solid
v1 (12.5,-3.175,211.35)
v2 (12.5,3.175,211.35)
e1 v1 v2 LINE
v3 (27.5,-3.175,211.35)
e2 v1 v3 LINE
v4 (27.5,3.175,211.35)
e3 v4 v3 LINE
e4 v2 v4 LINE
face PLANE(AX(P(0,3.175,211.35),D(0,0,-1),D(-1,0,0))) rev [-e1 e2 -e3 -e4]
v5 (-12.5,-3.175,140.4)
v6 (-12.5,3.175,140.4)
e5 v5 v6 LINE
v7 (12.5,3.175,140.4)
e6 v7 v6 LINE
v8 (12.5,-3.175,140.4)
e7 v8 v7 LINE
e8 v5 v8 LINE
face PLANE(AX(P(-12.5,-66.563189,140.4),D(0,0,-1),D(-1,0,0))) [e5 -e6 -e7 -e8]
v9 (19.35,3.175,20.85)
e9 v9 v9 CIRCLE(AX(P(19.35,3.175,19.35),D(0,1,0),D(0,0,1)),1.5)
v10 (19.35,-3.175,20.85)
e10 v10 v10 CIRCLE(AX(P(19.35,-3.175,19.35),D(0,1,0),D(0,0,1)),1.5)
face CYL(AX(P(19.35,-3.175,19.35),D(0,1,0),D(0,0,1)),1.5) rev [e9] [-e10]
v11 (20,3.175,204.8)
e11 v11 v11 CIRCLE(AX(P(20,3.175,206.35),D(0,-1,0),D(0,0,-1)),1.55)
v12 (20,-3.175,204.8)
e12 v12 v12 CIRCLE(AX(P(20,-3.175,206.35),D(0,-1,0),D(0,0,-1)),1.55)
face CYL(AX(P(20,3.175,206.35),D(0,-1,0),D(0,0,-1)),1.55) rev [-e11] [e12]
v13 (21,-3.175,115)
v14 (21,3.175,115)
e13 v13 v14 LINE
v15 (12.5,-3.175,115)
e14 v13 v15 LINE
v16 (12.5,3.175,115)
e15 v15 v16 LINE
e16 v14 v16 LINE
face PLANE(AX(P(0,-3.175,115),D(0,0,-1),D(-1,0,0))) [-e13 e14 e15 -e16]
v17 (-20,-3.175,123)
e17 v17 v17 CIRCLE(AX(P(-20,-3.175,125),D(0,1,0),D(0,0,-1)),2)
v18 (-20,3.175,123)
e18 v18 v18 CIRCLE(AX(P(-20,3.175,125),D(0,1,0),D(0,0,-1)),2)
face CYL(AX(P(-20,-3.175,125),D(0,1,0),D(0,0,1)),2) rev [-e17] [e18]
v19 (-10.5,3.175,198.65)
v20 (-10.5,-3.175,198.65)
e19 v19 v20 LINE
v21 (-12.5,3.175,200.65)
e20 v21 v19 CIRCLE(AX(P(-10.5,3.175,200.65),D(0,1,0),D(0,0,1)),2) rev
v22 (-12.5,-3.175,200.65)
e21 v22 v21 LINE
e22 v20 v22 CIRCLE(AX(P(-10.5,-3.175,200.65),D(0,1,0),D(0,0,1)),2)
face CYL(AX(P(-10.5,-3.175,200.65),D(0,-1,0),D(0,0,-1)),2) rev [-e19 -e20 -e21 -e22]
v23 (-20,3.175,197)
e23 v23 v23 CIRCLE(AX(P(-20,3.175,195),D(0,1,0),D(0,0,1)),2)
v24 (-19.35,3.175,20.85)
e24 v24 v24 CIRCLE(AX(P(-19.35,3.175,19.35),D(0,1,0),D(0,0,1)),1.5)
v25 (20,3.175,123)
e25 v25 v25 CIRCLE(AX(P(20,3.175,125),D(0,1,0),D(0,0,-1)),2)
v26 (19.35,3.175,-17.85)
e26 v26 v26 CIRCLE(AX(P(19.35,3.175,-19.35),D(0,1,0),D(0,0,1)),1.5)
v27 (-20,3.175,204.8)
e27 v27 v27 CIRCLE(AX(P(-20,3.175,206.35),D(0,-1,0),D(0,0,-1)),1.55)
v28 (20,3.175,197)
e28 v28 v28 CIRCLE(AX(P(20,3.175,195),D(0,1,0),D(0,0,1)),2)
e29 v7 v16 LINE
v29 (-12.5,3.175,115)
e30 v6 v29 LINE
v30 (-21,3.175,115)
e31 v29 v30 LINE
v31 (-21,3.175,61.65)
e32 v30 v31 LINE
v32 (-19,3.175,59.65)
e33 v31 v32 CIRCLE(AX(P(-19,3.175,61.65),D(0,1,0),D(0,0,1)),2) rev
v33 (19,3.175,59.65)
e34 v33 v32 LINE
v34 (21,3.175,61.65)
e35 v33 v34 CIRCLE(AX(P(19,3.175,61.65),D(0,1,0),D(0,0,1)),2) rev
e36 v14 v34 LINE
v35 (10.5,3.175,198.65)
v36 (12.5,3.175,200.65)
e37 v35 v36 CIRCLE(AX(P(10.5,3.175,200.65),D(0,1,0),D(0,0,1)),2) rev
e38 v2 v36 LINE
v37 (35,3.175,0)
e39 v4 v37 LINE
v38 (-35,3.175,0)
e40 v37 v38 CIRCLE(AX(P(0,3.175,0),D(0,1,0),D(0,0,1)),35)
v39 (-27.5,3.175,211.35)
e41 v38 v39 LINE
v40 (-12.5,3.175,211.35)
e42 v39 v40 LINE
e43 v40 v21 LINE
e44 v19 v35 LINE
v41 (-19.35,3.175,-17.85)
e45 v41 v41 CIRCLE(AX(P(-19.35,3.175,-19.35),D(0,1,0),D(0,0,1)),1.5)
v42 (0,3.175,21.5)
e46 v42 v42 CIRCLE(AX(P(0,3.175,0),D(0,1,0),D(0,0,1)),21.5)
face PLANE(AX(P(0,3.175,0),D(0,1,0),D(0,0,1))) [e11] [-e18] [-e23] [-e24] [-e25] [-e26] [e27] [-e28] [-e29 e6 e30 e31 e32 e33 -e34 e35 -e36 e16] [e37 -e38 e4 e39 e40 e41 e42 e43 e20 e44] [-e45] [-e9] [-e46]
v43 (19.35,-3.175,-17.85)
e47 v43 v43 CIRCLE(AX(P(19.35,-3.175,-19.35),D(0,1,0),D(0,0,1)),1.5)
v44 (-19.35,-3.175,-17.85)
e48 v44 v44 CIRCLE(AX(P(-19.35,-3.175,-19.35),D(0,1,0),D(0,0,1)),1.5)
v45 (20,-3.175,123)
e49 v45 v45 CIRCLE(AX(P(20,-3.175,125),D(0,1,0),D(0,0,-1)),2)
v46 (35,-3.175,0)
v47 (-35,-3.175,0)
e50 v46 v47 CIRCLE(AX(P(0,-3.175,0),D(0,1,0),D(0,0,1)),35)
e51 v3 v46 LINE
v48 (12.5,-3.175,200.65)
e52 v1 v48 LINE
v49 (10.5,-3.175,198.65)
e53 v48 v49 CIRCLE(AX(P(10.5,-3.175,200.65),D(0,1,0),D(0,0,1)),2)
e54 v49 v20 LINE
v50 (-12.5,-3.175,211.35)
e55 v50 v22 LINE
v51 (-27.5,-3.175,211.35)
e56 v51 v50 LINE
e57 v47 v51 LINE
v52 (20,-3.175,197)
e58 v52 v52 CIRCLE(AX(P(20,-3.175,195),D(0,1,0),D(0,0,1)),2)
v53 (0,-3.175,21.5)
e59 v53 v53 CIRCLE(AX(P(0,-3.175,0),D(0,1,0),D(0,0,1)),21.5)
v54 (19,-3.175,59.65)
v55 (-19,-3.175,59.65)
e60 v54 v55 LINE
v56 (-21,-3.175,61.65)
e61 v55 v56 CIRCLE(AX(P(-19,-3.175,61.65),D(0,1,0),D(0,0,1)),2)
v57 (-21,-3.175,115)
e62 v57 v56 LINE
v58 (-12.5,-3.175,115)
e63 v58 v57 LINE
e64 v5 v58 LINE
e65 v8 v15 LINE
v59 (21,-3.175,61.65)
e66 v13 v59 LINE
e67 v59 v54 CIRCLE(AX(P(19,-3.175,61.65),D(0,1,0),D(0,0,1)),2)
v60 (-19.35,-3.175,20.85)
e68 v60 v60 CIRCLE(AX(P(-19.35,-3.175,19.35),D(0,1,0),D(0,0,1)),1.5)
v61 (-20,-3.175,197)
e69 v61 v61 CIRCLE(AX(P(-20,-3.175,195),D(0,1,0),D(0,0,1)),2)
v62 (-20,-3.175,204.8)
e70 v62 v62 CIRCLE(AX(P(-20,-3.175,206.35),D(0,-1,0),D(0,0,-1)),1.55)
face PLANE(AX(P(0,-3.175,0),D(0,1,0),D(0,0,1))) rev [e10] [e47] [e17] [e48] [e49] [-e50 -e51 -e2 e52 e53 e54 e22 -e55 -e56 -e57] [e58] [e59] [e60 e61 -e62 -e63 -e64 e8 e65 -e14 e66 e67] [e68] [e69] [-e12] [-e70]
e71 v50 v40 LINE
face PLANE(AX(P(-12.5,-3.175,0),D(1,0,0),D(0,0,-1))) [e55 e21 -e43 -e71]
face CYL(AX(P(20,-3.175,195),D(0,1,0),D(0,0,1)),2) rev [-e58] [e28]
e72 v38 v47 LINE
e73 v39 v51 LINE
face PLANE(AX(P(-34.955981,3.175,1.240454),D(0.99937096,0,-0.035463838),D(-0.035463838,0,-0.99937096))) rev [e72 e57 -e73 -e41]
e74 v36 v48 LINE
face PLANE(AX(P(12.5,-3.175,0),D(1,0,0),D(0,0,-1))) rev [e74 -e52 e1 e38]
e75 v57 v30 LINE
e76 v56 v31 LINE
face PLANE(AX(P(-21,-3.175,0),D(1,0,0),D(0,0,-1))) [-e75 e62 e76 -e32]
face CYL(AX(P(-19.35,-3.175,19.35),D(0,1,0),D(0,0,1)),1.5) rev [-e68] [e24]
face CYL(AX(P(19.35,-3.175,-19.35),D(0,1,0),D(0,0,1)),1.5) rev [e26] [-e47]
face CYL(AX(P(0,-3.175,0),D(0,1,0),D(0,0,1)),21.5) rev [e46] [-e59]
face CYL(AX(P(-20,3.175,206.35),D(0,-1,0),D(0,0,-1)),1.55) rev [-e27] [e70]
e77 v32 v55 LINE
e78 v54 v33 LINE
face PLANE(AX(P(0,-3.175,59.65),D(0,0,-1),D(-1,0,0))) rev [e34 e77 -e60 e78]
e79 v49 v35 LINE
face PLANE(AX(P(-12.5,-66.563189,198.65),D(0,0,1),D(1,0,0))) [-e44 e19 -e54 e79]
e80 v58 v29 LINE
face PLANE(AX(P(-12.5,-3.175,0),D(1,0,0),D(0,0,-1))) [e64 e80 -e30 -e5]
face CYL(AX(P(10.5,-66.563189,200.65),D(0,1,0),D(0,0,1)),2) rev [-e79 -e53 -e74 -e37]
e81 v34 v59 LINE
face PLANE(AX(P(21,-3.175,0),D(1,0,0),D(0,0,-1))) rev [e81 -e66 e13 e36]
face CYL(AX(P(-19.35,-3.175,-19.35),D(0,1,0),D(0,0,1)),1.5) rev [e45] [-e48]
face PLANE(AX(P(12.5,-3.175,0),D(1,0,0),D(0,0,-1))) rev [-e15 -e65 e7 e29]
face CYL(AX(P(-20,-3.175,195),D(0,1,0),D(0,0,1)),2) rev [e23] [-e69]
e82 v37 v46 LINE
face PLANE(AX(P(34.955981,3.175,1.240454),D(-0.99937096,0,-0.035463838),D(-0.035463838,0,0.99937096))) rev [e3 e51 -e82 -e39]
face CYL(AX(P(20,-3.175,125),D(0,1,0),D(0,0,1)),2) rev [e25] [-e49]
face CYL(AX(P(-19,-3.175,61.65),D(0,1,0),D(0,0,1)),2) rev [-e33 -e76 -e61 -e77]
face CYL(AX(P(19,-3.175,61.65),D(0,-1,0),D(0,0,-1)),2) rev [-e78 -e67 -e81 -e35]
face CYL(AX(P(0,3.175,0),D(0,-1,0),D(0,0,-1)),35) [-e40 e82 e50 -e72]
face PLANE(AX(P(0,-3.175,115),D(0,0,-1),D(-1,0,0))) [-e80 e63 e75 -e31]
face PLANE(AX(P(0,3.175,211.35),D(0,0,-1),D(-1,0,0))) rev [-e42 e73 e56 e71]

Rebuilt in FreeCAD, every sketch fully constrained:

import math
import FreeCAD as App
import Part
import Sketcher
Q = App.Units.Quantity


def edges_at(feature, points):
    """Names of the edges that pass closest to the given points."""
    edges = feature.Shape.Edges
    near = lambda p: min(range(len(edges)), key=lambda i: edges[i].distToShape(Part.Vertex(*p))[0])
    return sorted({f"Edge{near(p) + 1}" for p in points})

doc = App.newDocument("Part")
body = doc.addObject("PartDesign::Body", "Body")

# Sketch on XZ plane
sketch1 = body.newObject("Sketcher::SketchObject", "Sketch")
sketch1.AttachmentSupport = (doc.getObject("XZ_Plane"), [""])
sketch1.MapMode = "FlatFace"
sketch1.addGeometry([
    Part.ArcOfCircle(Part.Circle(App.Vector(0, 0, 0), App.Vector(0, 0, 1), 35), math.radians(180), math.radians(360)),
    Part.LineSegment(App.Vector(-35, 0, 0), App.Vector(-28, 211, 0)),
    Part.LineSegment(App.Vector(-28, 211, 0), App.Vector(28, 211, 0)),
    Part.LineSegment(App.Vector(28, 211, 0), App.Vector(35, 0, 0)),
], False)
sketch1.addConstraint([
    Sketcher.Constraint("Coincident", 0, 1, 1, 1),
    Sketcher.Constraint("Coincident", 1, 2, 2, 1),
    Sketcher.Constraint("Coincident", 2, 2, 3, 1),
    Sketcher.Constraint("Coincident", 3, 2, 0, 2),
    Sketcher.Constraint("Horizontal", 2),
    Sketcher.Constraint("Coincident", 0, 3, -1, 1),
    Sketcher.Constraint("PointOnObject", 0, 1, -1),
    Sketcher.Constraint("PointOnObject", 3, 2, -1),
    Sketcher.Constraint("Equal", 1, 3),
    Sketcher.Constraint("Radius", 0, Q("35 mm")),
    Sketcher.Constraint("DistanceX", 2, 1, 2, 2, Q("55 mm")),
    Sketcher.Constraint("DistanceY", -1, 1, 1, 2, Q("211.35 mm")),
])
pad1 = body.newObject("PartDesign::Pad", "Pad")
pad1.Profile = sketch1
pad1.Length = 6.35
pad1.Midplane = True

# Sketch on XZ plane
sketch2 = body.newObject("Sketcher::SketchObject", "Sketch001")
sketch2.AttachmentSupport = (doc.getObject("XZ_Plane"), [""])
sketch2.MapMode = "FlatFace"
sketch2.AttachmentOffset = App.Placement(App.Vector(0, 0, -3.175), App.Rotation())
sketch2.addGeometry(Part.Circle(App.Vector(0, 0, 0), App.Vector(0, 0, 1), 22), False)
sketch2.addConstraint([
    Sketcher.Constraint("Coincident", 0, 3, -1, 1),
    Sketcher.Constraint("Diameter", 0, Q("43 mm")),
])
pocket1 = body.newObject("PartDesign::Pocket", "Pocket")
pocket1.Profile = sketch2
pocket1.Type = "ThroughAll"
pocket1.Reversed = True

# Sketch on XZ plane
sketch3 = body.newObject("Sketcher::SketchObject", "Sketch002")
sketch3.AttachmentSupport = (doc.getObject("XZ_Plane"), [""])
sketch3.MapMode = "FlatFace"
sketch3.AttachmentOffset = App.Placement(App.Vector(0, 0, -3.175), App.Rotation())
sketch3.addGeometry([
    Part.LineSegment(App.Vector(-21, 60, 0), App.Vector(-21, 115, 0)),  # 0
    Part.LineSegment(App.Vector(-21, 115, 0), App.Vector(-12, 115, 0)),  # 1
    Part.LineSegment(App.Vector(-12, 115, 0), App.Vector(-12, 211, 0)),  # 2
    Part.LineSegment(App.Vector(-12, 211, 0), App.Vector(12, 211, 0)),  # 3
    Part.LineSegment(App.Vector(12, 211, 0), App.Vector(12, 115, 0)),  # 4
    Part.LineSegment(App.Vector(12, 115, 0), App.Vector(21, 115, 0)),  # 5
    Part.LineSegment(App.Vector(21, 115, 0), App.Vector(21, 60, 0)),  # 6
    Part.LineSegment(App.Vector(21, 60, 0), App.Vector(-21, 60, 0)),  # 7
], False)
sketch3.addConstraint([
    Sketcher.Constraint("Coincident", 0, 2, 1, 1),
    Sketcher.Constraint("Coincident", 1, 2, 2, 1),
    Sketcher.Constraint("Coincident", 2, 2, 3, 1),
    Sketcher.Constraint("Coincident", 3, 2, 4, 1),
    Sketcher.Constraint("Coincident", 4, 2, 5, 1),
    Sketcher.Constraint("Coincident", 5, 2, 6, 1),
    Sketcher.Constraint("Coincident", 6, 2, 7, 1),
    Sketcher.Constraint("Coincident", 7, 2, 0, 1),
    Sketcher.Constraint("Vertical", 0),
    Sketcher.Constraint("Horizontal", 1),
    Sketcher.Constraint("Vertical", 2),
    Sketcher.Constraint("Horizontal", 3),
    Sketcher.Constraint("Vertical", 4),
    Sketcher.Constraint("Horizontal", 5),
    Sketcher.Constraint("Vertical", 6),
    Sketcher.Constraint("Horizontal", 7),
    Sketcher.Constraint("Symmetric", 1, 2, 4, 2, -2),
    Sketcher.Constraint("Equal", 1, 5),
    Sketcher.Constraint("DistanceX", 3, 1, 3, 2, Q("25 mm")),
    Sketcher.Constraint("DistanceX", 7, 2, 7, 1, Q("42 mm")),
    Sketcher.Constraint("DistanceY", -1, 1, 0, 2, Q("115 mm")),
    Sketcher.Constraint("DistanceY", 0, 1, 0, 2, Q("55.35 mm")),
    Sketcher.Constraint("DistanceY", 2, 1, 2, 2, Q("96.35 mm")),
])
pocket2 = body.newObject("PartDesign::Pocket", "Pocket001")
pocket2.Profile = sketch3
pocket2.Type = "ThroughAll"
pocket2.Reversed = True

# Sketch on XZ plane
sketch4 = body.newObject("Sketcher::SketchObject", "Sketch003")
sketch4.AttachmentSupport = (doc.getObject("XZ_Plane"), [""])
sketch4.MapMode = "FlatFace"
sketch4.AttachmentOffset = App.Placement(App.Vector(0, 0, -3.175), App.Rotation())
sketch4.addGeometry([
    Part.Circle(App.Vector(-19.4, -19.4, 0), App.Vector(0, 0, 1), 1.5),
    Part.Circle(App.Vector(19.4, -19.4, 0), App.Vector(0, 0, 1), 1.5),
    Part.Circle(App.Vector(19.4, 19.4, 0), App.Vector(0, 0, 1), 1.5),
    Part.Circle(App.Vector(-19.4, 19.4, 0), App.Vector(0, 0, 1), 1.5),
], False)
sketch4.addConstraint([
    Sketcher.Constraint("Equal", 0, 1),
    Sketcher.Constraint("Equal", 1, 2),
    Sketcher.Constraint("Equal", 2, 3),
    Sketcher.Constraint("Symmetric", 0, 3, 2, 3, -1, 1),
    Sketcher.Constraint("Symmetric", 1, 3, 3, 3, -1, 1),
    Sketcher.Constraint("Symmetric", 0, 3, 1, 3, -2),
    Sketcher.Constraint("Diameter", 0, Q("3 mm")),
    Sketcher.Constraint("DistanceX", 0, 3, 1, 3, Q("38.7 mm")),
    Sketcher.Constraint("DistanceY", 1, 3, 2, 3, Q("38.7 mm")),
])
pocket3 = body.newObject("PartDesign::Pocket", "Pocket002")
pocket3.Profile = sketch4
pocket3.Type = "ThroughAll"
pocket3.Reversed = True

# Sketch on XZ plane
sketch5 = body.newObject("Sketcher::SketchObject", "Sketch004")
sketch5.AttachmentSupport = (doc.getObject("XZ_Plane"), [""])
sketch5.MapMode = "FlatFace"
sketch5.AttachmentOffset = App.Placement(App.Vector(0, 0, -3.175), App.Rotation())
sketch5.addGeometry([
    Part.Circle(App.Vector(-20, 195, 0), App.Vector(0, 0, 1), 2),
    Part.Circle(App.Vector(20, 195, 0), App.Vector(0, 0, 1), 2),
    Part.Circle(App.Vector(20, 125, 0), App.Vector(0, 0, 1), 2),
    Part.Circle(App.Vector(-20, 125, 0), App.Vector(0, 0, 1), 2),
], False)
sketch5.addConstraint([
    Sketcher.Constraint("Equal", 0, 1),
    Sketcher.Constraint("Equal", 1, 2),
    Sketcher.Constraint("Equal", 2, 3),
    Sketcher.Constraint("Symmetric", 0, 3, 1, 3, -2),
    Sketcher.Constraint("Symmetric", 2, 3, 3, 3, -2),
    Sketcher.Constraint("Vertical", 1, 3, 2, 3),
    Sketcher.Constraint("Diameter", 0, Q("4 mm")),
    Sketcher.Constraint("DistanceX", 0, 3, -1, 1, Q("20 mm")),
    Sketcher.Constraint("DistanceY", -1, 1, 0, 3, Q("195 mm")),
    Sketcher.Constraint("DistanceY", -1, 1, 2, 3, Q("125 mm")),
])
pocket4 = body.newObject("PartDesign::Pocket", "Pocket003")
pocket4.Profile = sketch5
pocket4.Type = "ThroughAll"
pocket4.Reversed = True

# Sketch on XZ plane
sketch6 = body.newObject("Sketcher::SketchObject", "Sketch005")
sketch6.AttachmentSupport = (doc.getObject("XZ_Plane"), [""])
sketch6.MapMode = "FlatFace"
sketch6.AttachmentOffset = App.Placement(App.Vector(0, 0, 3.175), App.Rotation())
sketch6.addGeometry([
    Part.Circle(App.Vector(-20, 206.3, 0), App.Vector(0, 0, 1), 1.6),
    Part.Circle(App.Vector(20, 206.3, 0), App.Vector(0, 0, 1), 1.6),
], False)
sketch6.addConstraint([
    Sketcher.Constraint("Equal", 0, 1),
    Sketcher.Constraint("Symmetric", 0, 3, 1, 3, -2),
    Sketcher.Constraint("Diameter", 0, Q("3.1 mm")),
    Sketcher.Constraint("DistanceX", 0, 3, -1, 1, Q("20 mm")),
    Sketcher.Constraint("DistanceY", -1, 1, 0, 3, Q("206.35 mm")),
])
pocket5 = body.newObject("PartDesign::Pocket", "Pocket004")
pocket5.Profile = sketch6
pocket5.Type = "ThroughAll"

# Sketch on XZ plane
sketch7 = body.newObject("Sketcher::SketchObject", "Sketch006")
sketch7.AttachmentSupport = (doc.getObject("XZ_Plane"), [""])
sketch7.MapMode = "FlatFace"
sketch7.AttachmentOffset = App.Placement(App.Vector(0, 0, -3.175), App.Rotation())
sketch7.addGeometry([
    Part.LineSegment(App.Vector(-12, 140, 0), App.Vector(-12, 199, 0)),
    Part.LineSegment(App.Vector(-12, 199, 0), App.Vector(12, 199, 0)),
    Part.LineSegment(App.Vector(12, 199, 0), App.Vector(12, 140, 0)),
    Part.LineSegment(App.Vector(12, 140, 0), App.Vector(-12, 140, 0)),
], False)
sketch7.addConstraint([
    Sketcher.Constraint("Coincident", 0, 2, 1, 1),
    Sketcher.Constraint("Coincident", 1, 2, 2, 1),
    Sketcher.Constraint("Coincident", 2, 2, 3, 1),
    Sketcher.Constraint("Coincident", 3, 2, 0, 1),
    Sketcher.Constraint("Vertical", 0),
    Sketcher.Constraint("Horizontal", 1),
    Sketcher.Constraint("Vertical", 2),
    Sketcher.Constraint("Horizontal", 3),
    Sketcher.Constraint("DistanceX", 1, 1, 1, 2, Q("25 mm")),
    Sketcher.Constraint("DistanceY", 0, 1, 0, 2, Q("58.25 mm")),
    Sketcher.Constraint("DistanceX", 0, 2, -1, 1, Q("12.5 mm")),
    Sketcher.Constraint("DistanceY", -1, 1, 2, 2, Q("140.4 mm")),
])
pad2 = body.newObject("PartDesign::Pad", "Pad001")
pad2.Profile = sketch7
pad2.Length = 6.35
doc.recompute()

fillet = body.newObject("PartDesign::Fillet", "Fillet")
fillet.Base = (pad2, edges_at(pad2, [
    (-12.5, 0, 198.65),
    (12.5, 0, 198.65),
    (-21, 0, 59.65),
    (21, 0, 59.65),
]))
fillet.Radius = 2

doc.recompute()
